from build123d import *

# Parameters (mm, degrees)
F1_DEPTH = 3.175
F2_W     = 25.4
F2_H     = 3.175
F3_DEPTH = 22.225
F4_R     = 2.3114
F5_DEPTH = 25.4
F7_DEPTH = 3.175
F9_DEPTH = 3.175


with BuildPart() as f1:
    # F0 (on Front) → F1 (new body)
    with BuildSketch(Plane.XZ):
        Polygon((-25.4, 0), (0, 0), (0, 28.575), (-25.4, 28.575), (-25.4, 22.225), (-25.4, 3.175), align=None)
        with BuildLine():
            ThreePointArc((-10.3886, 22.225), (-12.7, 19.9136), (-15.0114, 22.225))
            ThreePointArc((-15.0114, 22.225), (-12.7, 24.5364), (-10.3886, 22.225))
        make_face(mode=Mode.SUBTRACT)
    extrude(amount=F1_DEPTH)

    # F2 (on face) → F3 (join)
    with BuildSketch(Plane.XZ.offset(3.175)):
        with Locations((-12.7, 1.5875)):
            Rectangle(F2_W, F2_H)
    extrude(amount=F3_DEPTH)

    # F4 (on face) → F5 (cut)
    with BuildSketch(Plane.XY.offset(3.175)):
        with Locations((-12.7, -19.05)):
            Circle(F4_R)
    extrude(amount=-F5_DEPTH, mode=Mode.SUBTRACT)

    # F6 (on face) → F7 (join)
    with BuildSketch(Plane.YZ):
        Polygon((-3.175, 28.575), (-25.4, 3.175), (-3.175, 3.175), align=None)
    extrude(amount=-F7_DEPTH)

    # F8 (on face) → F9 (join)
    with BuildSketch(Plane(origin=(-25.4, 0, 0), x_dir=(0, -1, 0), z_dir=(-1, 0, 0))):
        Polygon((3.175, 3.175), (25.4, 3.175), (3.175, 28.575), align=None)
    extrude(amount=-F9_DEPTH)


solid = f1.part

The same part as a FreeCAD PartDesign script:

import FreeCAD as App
import Part
import Sketcher
from FreeCAD import Vector
Q = App.Units.Quantity


def add_polygon(sketch, points):
    """Adds a closed chain of lines whose ends are joined by coincident constraints."""
    first, n = sketch.GeometryCount, len(points)
    for a, b in zip(points, points[1:] + points[:1]):
        sketch.addGeometry(Part.LineSegment(App.Vector(*a, 0), App.Vector(*b, 0)), False)
    for i in range(n):
        sketch.addConstraint(Sketcher.Constraint("Coincident", first + i, 2, first + (i + 1) % n, 1))

doc = App.newDocument("Part")
body = doc.addObject("PartDesign::Body", "Body")

# Sketch on XZ plane
sketch1 = doc.addObject("Sketcher::SketchObject", "Sketch")
body.addObject(sketch1)
sketch1.AttachmentSupport = (doc.XZ_Plane, [""])
sketch1.MapMode = "FlatFace"
add_polygon(sketch1, [(-25.4, 0), (0, 0), (0, 28.6), (-25.4, 28.6)])  # lines 0-3
sketch1.addGeometry(Part.Circle(Vector(-12.7, 22.2, 0), Vector(0, 0, 1), 2.3), False)  # 4
sketch1.addConstraint([
    Sketcher.Constraint("Horizontal", 0),
    Sketcher.Constraint("Vertical", 1),
    Sketcher.Constraint("Horizontal", 2),
    Sketcher.Constraint("Vertical", 3),
    Sketcher.Constraint("Coincident", 0, 2, -1, 1),
    Sketcher.Constraint("DistanceX", 0, 1, 0, 2, Q("1 in")),
    Sketcher.Constraint("Diameter", 4, Q("0.182 in")),
    Sketcher.Constraint("DistanceX", 4, 3, -1, 1, Q("0.5 in")),
    Sketcher.Constraint("DistanceY", 1, 1, 1, 2, Q("1.125 in")),
    Sketcher.Constraint("DistanceY", 4, 3, 1, 2, Q("0.25 in")),
])
pad1 = doc.addObject("PartDesign::Pad", "Pad")
body.addObject(pad1)
pad1.Profile = sketch1
pad1.Length = Q("0.125 in")

# Sketch on XZ plane
sketch2 = doc.addObject("Sketcher::SketchObject", "Sketch001")
body.addObject(sketch2)
sketch2.AttachmentSupport = (doc.XZ_Plane, [""])
sketch2.MapMode = "FlatFace"
sketch2.AttachmentOffset = App.Placement(Vector(0, 0, 0.125 * 25.4), App.Rotation())
add_polygon(sketch2, [(-25.4, 3.2), (-25.4, 0), (0, 0), (0, 3.2)])  # lines 0-3
sketch2.addConstraint([
    Sketcher.Constraint("Vertical", 0),
    Sketcher.Constraint("Horizontal", 1),
    Sketcher.Constraint("Vertical", 2),
    Sketcher.Constraint("Horizontal", 3),
    Sketcher.Constraint("Coincident", 1, 2, -1, 1),
    Sketcher.Constraint("DistanceX", 1, 1, 1, 2, Q("1 in")),
    Sketcher.Constraint("DistanceY", 0, 2, 0, 1, Q("0.125 in")),
])
pad2 = doc.addObject("PartDesign::Pad", "Pad001")
body.addObject(pad2)
pad2.Profile = sketch2
pad2.Length = Q("0.875 in")

# Sketch on XY plane
sketch3 = doc.addObject("Sketcher::SketchObject", "Sketch002")
body.addObject(sketch3)
sketch3.AttachmentSupport = (doc.XY_Plane, [""])
sketch3.MapMode = "FlatFace"
sketch3.AttachmentOffset = App.Placement(Vector(0, 0, 0.125 * 25.4), App.Rotation())
sketch3.addGeometry(Part.Circle(Vector(-12.7, -19.1, 0), Vector(0, 0, 1), 2.3), False)
sketch3.addConstraint([
    Sketcher.Constraint("Diameter", 0, Q("0.182 in")),
    Sketcher.Constraint("DistanceX", 0, 3, -1, 1, Q("0.5 in")),
    Sketcher.Constraint("DistanceY", 0, 3, -1, 1, Q("0.75 in")),
])
pocket1 = doc.addObject("PartDesign::Pocket", "Pocket")
body.addObject(pocket1)
pocket1.Profile = sketch3
pocket1.Length = Q("1 in")

# Sketch on YZ plane
sketch4 = doc.addObject("Sketcher::SketchObject", "Sketch003")
body.addObject(sketch4)
sketch4.AttachmentSupport = (doc.YZ_Plane, [""])
sketch4.MapMode = "FlatFace"
add_polygon(sketch4, [(-3, 29), (-25, 3), (-3, 3)])  # lines 0-2
sketch4.addConstraint([
    Sketcher.Constraint("Horizontal", 1),
    Sketcher.Constraint("Vertical", 2),
    Sketcher.Constraint("DistanceY", 2, 1, 2, 2, Q("1 in")),
    Sketcher.Constraint("DistanceX", 0, 2, -1, 1, Q("1 in")),
    Sketcher.Constraint("DistanceX", 1, 1, 1, 2, Q("0.875 in")),
    Sketcher.Constraint("DistanceY", -1, 1, 0, 2, Q("0.125 in")),
])
pad3 = doc.addObject("PartDesign::Pad", "Pad002")
body.addObject(pad3)
pad3.Profile = sketch4
pad3.Length = Q("0.125 in")
pad3.Reversed = True

# Sketch on YZ plane
sketch5 = doc.addObject("Sketcher::SketchObject", "Sketch004")
body.addObject(sketch5)
sketch5.AttachmentSupport = (doc.YZ_Plane, [""])
sketch5.MapMode = "FlatFace"
sketch5.AttachmentOffset = App.Placement(Vector(0, 0, -1 * 25.4), App.Rotation())
add_polygon(sketch5, [(-3, 3), (-25, 3), (-3, 29)])  # lines 0-2
sketch5.addConstraint([
    Sketcher.Constraint("Horizontal", 0),
    Sketcher.Constraint("Vertical", 2),
    Sketcher.Constraint("DistanceY", 2, 2, 2, 1, Q("1 in")),
    Sketcher.Constraint("DistanceX", 0, 2, -1, 1, Q("1 in")),
    Sketcher.Constraint("DistanceX", 0, 2, 0, 1, Q("0.875 in")),
    Sketcher.Constraint("DistanceY", -1, 1, 0, 2, Q("0.125 in")),
])
pad4 = doc.addObject("PartDesign::Pad", "Pad003")
body.addObject(pad4)
pad4.Profile = sketch5
pad4.Length = Q("0.125 in")

doc.recompute()
